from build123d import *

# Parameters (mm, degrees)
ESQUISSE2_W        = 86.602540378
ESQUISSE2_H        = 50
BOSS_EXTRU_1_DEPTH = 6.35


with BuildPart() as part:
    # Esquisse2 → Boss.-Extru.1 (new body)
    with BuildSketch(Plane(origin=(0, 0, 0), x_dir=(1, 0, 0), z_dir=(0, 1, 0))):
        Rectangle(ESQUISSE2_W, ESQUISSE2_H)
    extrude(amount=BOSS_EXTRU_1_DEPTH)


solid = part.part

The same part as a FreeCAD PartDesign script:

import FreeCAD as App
import Part
import Sketcher
from FreeCAD import Vector
Q = App.Units.Quantity

doc = App.newDocument("Part")
body = doc.addObject("PartDesign::Body", "Body")

# Sketch on XZ plane
sketch1 = body.newObject("Sketcher::SketchObject", "Sketch")
sketch1.AttachmentSupport = (doc.getObject("XZ_Plane"), [""])
sketch1.MapMode = "FlatFace"
sketch1.addGeometry([
    Part.LineSegment(Vector(-43, -25, 0), Vector(-43, 25, 0)),
    Part.LineSegment(Vector(-43, 25, 0), Vector(43, 25, 0)),
    Part.LineSegment(Vector(43, 25, 0), Vector(43, -25, 0)),
    Part.LineSegment(Vector(43, -25, 0), Vector(-43, -25, 0)),
], False)
sketch1.addConstraint([
    Sketcher.Constraint("Coincident", 0, 2, 1, 1),
    Sketcher.Constraint("Coincident", 1, 2, 2, 1),
    Sketcher.Constraint("Coincident", 2, 2, 3, 1),
    Sketcher.Constraint("Coincident", 3, 2, 0, 1),
    Sketcher.Constraint("Vertical", 0),
    Sketcher.Constraint("Horizontal", 1),
    Sketcher.Constraint("Vertical", 2),
    Sketcher.Constraint("Horizontal", 3),
    Sketcher.Constraint("Symmetric", 0, 2, 2, 2, -1, 1),
    Sketcher.Constraint("DistanceY", 0, 1, 0, 2, Q("50 mm")),
    Sketcher.Constraint("DistanceX", 1, 1, 1, 2, Q("86.60254 mm")),
])
pad1 = body.newObject("PartDesign::Pad", "Pad")
pad1.Profile = sketch1
pad1.Length = 6.35
pad1.Reversed = True

doc.recompute()
